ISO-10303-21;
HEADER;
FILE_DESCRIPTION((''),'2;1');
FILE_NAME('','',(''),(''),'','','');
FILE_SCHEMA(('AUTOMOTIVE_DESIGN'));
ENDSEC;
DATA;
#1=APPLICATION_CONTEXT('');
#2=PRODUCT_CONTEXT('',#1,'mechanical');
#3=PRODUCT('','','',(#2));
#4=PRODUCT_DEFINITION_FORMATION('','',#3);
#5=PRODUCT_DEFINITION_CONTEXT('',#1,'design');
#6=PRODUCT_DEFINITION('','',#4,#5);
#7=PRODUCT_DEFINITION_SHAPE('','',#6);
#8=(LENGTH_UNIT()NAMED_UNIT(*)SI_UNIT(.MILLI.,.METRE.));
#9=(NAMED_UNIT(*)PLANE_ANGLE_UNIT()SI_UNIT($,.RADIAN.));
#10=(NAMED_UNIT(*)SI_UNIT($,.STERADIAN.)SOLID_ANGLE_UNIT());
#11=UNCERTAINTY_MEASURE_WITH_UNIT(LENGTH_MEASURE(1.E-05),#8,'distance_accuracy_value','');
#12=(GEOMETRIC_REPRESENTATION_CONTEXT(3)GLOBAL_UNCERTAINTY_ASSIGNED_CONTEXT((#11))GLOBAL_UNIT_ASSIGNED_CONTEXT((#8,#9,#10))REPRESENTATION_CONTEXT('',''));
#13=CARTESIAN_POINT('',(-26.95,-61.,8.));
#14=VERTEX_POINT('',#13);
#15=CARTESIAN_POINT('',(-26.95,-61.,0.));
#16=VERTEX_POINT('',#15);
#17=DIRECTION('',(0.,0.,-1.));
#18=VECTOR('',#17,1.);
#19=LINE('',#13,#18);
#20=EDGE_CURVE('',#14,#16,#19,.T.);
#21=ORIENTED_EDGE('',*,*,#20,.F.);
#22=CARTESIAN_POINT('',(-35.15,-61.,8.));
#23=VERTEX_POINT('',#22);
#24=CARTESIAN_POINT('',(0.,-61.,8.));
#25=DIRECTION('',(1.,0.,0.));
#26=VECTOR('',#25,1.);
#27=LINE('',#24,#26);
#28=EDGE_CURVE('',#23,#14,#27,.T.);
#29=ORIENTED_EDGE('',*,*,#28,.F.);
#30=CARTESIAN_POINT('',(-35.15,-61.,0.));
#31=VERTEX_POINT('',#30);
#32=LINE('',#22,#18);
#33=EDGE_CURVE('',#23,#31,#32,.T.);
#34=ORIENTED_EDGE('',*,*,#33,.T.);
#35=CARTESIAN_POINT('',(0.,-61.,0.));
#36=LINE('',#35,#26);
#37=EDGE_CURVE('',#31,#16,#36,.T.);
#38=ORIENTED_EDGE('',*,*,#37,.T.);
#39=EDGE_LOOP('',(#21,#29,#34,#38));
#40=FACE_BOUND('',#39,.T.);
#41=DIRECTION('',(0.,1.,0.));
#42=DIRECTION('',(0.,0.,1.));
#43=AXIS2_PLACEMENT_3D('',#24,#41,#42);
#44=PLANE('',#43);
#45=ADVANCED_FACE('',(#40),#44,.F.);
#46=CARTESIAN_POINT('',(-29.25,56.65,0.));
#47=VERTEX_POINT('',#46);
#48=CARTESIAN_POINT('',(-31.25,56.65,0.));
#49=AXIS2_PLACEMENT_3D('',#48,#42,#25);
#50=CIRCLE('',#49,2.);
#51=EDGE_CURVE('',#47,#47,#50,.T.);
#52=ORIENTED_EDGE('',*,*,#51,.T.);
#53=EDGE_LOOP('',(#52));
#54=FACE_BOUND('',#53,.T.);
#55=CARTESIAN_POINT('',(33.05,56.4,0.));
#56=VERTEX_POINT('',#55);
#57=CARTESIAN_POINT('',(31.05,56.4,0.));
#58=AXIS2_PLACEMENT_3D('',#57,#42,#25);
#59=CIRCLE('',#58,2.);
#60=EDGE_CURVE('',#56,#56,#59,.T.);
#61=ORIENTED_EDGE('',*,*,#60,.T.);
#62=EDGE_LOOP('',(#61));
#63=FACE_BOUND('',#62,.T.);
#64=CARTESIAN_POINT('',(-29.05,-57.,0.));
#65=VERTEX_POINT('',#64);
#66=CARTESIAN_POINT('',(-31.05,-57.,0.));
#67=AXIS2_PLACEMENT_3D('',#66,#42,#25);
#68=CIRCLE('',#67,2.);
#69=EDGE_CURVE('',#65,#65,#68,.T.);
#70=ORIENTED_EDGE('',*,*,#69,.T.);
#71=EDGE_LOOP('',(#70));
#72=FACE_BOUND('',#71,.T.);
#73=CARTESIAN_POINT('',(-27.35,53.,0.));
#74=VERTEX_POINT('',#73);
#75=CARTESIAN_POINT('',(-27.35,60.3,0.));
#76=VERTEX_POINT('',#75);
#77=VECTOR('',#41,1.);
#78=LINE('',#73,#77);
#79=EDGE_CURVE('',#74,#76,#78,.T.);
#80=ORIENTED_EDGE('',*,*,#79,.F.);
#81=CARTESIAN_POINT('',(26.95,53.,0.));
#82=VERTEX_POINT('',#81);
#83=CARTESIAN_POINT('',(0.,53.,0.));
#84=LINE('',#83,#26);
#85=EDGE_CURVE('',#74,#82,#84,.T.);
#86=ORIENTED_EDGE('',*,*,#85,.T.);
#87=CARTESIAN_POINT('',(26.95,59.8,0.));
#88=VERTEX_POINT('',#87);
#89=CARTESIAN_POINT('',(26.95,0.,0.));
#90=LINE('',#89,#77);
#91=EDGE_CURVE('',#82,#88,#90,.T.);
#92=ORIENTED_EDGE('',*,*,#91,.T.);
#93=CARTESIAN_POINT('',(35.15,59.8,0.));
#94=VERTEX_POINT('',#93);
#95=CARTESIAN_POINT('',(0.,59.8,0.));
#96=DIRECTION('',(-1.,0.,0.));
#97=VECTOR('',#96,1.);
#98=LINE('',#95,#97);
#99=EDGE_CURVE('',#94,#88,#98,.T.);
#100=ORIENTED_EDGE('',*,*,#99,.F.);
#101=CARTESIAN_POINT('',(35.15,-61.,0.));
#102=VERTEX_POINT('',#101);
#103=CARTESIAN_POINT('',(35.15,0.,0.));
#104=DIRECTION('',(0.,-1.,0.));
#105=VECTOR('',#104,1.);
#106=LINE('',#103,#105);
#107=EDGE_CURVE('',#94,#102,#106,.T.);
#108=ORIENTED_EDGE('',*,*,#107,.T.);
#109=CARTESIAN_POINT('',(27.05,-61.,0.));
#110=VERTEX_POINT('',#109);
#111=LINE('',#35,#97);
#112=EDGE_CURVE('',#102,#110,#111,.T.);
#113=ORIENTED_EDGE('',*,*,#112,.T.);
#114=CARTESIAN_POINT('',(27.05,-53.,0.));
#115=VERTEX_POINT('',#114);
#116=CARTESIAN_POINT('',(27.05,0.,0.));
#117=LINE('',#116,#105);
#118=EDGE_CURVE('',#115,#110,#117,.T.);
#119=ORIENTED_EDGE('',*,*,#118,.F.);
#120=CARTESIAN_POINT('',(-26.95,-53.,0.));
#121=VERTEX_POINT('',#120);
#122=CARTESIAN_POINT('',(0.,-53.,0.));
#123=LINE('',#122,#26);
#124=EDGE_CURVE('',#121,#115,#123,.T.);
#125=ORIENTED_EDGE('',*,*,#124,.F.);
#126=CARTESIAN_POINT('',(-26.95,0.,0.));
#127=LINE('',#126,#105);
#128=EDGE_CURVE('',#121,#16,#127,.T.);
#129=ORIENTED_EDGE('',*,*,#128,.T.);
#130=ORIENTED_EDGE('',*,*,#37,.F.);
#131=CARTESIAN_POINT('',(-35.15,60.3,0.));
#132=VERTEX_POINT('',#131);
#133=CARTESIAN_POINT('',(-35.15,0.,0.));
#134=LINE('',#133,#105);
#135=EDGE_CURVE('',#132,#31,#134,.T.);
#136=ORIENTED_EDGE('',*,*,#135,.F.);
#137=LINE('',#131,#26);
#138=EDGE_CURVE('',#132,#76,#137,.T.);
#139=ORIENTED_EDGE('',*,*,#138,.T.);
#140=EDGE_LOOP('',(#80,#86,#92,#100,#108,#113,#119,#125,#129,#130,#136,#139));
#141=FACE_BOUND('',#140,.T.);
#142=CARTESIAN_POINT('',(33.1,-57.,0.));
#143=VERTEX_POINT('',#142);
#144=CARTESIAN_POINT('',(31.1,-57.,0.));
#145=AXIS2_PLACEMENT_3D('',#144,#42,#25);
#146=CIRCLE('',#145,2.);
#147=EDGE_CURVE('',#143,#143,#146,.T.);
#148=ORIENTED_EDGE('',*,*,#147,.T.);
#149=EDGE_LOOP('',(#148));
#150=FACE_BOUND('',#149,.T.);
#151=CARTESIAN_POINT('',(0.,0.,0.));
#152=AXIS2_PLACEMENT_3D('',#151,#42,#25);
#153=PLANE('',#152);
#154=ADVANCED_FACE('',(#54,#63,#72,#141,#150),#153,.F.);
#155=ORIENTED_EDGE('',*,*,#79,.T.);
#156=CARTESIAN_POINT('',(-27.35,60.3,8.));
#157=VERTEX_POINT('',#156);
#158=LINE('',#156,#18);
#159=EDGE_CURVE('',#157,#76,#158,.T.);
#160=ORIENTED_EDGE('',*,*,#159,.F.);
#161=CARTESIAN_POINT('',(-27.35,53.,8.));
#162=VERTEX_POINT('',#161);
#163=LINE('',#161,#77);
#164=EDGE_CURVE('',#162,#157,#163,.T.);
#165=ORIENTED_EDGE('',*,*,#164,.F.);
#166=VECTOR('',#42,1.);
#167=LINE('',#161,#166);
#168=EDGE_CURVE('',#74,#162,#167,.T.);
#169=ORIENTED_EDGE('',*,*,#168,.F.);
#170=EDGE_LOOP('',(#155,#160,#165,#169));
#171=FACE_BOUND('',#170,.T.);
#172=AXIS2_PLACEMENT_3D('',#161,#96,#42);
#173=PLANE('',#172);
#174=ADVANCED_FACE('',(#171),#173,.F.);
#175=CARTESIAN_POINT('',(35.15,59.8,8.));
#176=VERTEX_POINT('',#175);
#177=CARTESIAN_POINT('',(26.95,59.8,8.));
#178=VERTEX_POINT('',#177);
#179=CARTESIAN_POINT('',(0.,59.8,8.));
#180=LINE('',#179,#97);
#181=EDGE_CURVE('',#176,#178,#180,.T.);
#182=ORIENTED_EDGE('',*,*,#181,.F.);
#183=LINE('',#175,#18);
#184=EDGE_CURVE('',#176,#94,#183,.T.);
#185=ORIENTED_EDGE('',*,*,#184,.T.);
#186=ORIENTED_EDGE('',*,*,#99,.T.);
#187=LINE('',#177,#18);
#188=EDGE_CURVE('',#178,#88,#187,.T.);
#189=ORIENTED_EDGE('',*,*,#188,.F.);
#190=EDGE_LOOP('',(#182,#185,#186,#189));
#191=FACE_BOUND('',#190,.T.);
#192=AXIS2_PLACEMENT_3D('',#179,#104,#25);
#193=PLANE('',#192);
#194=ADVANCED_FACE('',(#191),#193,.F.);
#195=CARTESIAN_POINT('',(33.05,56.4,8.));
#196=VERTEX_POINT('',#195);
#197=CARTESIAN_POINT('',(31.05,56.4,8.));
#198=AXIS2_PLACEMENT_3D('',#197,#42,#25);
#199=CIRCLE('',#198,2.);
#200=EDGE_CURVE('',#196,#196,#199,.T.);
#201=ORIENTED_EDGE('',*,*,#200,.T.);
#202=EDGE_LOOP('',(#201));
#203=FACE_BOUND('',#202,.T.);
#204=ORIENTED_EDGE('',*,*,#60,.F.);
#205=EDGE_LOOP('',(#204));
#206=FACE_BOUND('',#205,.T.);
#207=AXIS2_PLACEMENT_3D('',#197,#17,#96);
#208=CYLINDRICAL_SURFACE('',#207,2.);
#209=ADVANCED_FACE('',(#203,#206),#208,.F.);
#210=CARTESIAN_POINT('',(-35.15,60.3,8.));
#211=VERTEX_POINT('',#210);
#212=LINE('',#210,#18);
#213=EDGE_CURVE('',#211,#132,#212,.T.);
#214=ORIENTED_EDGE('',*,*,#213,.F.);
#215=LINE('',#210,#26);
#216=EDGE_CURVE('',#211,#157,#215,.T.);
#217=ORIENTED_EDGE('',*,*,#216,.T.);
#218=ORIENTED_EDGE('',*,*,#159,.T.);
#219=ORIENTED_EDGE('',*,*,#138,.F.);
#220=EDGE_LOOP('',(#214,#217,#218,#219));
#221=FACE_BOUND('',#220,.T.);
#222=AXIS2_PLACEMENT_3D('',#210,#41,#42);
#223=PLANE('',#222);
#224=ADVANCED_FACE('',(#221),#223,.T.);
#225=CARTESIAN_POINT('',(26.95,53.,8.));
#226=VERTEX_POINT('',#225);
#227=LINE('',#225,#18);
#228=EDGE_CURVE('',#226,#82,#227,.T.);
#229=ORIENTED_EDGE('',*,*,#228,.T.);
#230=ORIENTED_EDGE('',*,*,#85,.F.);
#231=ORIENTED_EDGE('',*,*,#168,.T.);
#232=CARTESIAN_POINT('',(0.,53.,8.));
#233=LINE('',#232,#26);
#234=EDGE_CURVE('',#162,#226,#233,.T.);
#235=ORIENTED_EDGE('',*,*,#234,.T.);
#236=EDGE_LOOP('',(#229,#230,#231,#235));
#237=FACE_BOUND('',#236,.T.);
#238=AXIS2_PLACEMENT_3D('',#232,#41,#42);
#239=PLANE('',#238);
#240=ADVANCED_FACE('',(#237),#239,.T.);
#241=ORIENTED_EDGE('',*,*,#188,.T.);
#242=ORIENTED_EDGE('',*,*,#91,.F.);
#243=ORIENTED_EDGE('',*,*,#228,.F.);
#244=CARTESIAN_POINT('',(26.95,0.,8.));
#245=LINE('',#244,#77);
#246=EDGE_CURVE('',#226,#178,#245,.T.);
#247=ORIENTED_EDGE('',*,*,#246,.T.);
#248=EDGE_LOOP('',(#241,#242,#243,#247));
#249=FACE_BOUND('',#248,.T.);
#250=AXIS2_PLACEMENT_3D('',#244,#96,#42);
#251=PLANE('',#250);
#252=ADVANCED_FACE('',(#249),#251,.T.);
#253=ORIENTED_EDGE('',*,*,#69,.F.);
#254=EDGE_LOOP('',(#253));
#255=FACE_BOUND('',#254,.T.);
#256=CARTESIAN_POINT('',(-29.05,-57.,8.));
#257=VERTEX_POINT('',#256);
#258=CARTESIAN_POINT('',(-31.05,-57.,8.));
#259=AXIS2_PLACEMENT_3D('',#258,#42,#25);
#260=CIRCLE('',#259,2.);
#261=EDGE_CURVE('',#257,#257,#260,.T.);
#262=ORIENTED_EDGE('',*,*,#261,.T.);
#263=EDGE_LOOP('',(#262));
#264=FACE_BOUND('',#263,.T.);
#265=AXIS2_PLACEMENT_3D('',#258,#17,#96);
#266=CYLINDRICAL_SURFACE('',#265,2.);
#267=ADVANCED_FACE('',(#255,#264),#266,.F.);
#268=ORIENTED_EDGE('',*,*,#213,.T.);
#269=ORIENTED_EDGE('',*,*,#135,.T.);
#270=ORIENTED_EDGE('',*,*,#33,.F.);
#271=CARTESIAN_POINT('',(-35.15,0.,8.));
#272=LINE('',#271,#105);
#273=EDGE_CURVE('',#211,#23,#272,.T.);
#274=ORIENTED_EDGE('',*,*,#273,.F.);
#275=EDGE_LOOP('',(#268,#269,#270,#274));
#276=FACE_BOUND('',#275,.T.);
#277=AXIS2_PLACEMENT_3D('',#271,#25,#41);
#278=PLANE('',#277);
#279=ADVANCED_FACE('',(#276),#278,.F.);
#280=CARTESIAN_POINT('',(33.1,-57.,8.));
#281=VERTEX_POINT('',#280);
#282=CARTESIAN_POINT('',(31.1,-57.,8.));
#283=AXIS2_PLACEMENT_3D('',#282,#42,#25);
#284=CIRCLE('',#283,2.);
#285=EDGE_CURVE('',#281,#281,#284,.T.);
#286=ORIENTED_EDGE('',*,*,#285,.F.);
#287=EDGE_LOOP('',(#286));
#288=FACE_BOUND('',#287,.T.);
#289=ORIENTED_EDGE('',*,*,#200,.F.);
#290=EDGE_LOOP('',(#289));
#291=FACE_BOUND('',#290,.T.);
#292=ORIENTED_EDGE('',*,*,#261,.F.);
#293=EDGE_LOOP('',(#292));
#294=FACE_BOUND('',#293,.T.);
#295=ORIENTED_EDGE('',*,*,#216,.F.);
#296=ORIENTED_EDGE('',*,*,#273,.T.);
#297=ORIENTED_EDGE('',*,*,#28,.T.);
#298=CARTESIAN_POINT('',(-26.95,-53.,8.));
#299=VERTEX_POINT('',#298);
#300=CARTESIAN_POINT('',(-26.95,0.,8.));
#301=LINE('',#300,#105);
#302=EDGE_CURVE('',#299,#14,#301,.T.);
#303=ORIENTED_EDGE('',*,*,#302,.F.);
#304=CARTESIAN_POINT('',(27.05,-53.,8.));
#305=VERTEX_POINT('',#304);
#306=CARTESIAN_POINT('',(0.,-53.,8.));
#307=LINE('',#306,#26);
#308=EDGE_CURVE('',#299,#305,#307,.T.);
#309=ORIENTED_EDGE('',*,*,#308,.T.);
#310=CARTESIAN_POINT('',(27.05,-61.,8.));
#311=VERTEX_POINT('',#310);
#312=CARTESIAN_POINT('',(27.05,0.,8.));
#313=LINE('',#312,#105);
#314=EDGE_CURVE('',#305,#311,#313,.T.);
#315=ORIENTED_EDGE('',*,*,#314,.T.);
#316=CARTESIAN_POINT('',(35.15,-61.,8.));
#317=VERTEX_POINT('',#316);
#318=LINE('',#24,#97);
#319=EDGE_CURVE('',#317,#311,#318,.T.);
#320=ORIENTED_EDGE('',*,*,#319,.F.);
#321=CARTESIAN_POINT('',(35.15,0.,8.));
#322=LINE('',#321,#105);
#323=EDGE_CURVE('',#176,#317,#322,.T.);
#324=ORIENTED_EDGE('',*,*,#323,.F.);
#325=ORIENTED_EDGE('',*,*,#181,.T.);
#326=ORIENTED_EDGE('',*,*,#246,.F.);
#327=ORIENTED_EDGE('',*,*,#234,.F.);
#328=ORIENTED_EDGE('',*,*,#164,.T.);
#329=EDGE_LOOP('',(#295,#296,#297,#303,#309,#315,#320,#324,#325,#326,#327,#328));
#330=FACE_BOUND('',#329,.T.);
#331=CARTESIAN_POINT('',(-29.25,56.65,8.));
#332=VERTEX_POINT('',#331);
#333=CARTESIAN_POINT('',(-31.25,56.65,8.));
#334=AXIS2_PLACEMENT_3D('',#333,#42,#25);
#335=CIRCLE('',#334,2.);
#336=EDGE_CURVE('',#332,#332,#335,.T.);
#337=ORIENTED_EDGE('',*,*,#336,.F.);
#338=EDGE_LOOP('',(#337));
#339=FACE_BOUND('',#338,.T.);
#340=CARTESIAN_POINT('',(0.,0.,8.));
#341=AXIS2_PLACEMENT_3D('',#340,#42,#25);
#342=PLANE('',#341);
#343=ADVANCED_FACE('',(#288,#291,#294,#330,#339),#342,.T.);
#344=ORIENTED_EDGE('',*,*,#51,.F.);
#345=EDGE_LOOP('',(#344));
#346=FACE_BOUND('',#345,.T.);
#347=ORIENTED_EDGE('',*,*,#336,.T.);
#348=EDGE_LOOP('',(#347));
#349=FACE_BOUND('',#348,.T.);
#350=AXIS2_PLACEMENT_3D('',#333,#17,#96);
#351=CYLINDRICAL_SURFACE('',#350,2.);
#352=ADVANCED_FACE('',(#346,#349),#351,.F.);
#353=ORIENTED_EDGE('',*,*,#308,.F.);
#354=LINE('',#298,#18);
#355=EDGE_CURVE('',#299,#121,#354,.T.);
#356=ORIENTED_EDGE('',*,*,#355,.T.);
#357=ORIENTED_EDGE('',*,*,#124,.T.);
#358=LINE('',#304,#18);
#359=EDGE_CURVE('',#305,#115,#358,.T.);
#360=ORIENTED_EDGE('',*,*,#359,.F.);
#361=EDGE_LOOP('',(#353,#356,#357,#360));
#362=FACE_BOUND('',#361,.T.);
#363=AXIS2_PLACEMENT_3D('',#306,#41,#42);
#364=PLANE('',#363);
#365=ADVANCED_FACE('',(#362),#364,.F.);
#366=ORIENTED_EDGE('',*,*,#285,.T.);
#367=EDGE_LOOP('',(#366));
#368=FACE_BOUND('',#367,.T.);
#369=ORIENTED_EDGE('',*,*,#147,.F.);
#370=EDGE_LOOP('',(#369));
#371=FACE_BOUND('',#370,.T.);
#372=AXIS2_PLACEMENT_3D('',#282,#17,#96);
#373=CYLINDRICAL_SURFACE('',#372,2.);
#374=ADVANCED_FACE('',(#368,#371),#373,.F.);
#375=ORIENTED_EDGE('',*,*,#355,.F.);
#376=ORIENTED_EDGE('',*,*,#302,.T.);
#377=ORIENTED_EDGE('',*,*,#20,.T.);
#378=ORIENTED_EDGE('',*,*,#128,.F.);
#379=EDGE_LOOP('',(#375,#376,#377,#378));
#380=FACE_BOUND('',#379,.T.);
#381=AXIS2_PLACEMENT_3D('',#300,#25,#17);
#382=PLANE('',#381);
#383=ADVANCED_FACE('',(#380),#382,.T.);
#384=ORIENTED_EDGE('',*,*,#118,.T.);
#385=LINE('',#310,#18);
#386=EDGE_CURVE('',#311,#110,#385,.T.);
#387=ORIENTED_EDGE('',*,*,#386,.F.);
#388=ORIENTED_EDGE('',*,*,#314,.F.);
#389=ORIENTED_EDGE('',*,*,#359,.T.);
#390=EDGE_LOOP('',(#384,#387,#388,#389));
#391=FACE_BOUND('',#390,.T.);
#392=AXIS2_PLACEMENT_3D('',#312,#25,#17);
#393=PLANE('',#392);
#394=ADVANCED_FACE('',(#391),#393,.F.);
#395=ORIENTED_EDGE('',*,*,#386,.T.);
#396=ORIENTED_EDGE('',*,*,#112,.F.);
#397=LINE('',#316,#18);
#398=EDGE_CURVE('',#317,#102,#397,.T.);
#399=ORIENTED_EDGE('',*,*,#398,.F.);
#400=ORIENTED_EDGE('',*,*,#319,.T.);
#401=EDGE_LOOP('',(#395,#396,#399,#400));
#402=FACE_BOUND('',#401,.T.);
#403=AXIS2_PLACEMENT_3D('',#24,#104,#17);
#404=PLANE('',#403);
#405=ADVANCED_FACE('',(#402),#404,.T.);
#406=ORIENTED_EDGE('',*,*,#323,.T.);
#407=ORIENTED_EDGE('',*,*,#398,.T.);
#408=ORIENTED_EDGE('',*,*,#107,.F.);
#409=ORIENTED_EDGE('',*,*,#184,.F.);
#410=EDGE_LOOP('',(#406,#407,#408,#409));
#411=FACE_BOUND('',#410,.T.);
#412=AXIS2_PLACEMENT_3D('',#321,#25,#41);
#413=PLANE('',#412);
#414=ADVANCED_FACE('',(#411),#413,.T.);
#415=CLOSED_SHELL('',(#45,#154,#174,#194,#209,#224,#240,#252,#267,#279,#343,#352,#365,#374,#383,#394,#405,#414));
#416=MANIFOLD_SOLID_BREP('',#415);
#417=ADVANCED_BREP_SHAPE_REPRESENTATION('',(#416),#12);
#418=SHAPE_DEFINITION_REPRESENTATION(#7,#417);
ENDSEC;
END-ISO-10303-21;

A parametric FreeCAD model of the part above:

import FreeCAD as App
import Part
import Sketcher
from FreeCAD import Vector

doc = App.newDocument("Part")
body = doc.addObject("PartDesign::Body", "Body")

# Sketch on XY plane
sketch1 = body.newObject("Sketcher::SketchObject", "Sketch")
sketch1.AttachmentSupport = (doc.getObject("XY_Plane"), [""])
sketch1.MapMode = "FlatFace"
sketch1.addGeometry([
    Part.LineSegment(Vector(-35.15, 60.3, 0), Vector(-35.15, -61, 0)),  # 0
    Part.LineSegment(Vector(-35.15, -61, 0), Vector(-26.95, -61, 0)),  # 1
    Part.LineSegment(Vector(-26.95, -61, 0), Vector(-26.95, -53, 0)),  # 2
    Part.LineSegment(Vector(-26.95, -53, 0), Vector(27.05, -53, 0)),  # 3
    Part.LineSegment(Vector(27.05, -53, 0), Vector(27.05, -61, 0)),  # 4
    Part.LineSegment(Vector(27.05, -61, 0), Vector(35.15, -61, 0)),  # 5
    Part.LineSegment(Vector(35.15, -61, 0), Vector(35.15, 59.8, 0)),  # 6
    Part.LineSegment(Vector(35.15, 59.8, 0), Vector(26.95, 59.8, 0)),  # 7
    Part.LineSegment(Vector(26.95, 59.8, 0), Vector(26.95, 53, 0)),  # 8
    Part.LineSegment(Vector(26.95, 53, 0), Vector(-27.35, 53, 0)),  # 9
    Part.LineSegment(Vector(-27.35, 53, 0), Vector(-27.35, 60.3, 0)),  # 10
    Part.LineSegment(Vector(-27.35, 60.3, 0), Vector(-35.15, 60.3, 0)),  # 11
    Part.Circle(Vector(-31.25, 56.65, 0), Vector(0, 0, 1), 2),  # 12
    Part.Circle(Vector(-31.05, -57, 0), Vector(0, 0, 1), 2),  # 13
    Part.Circle(Vector(31.1, -57, 0), Vector(0, 0, 1), 2),  # 14
    Part.Circle(Vector(31.05, 56.4, 0), Vector(0, 0, 1), 2),  # 15
], False)
sketch1.addConstraint([
    Sketcher.Constraint("Coincident", 0, 2, 1, 1),
    Sketcher.Constraint("Coincident", 1, 2, 2, 1),
    Sketcher.Constraint("Coincident", 2, 2, 3, 1),
    Sketcher.Constraint("Coincident", 3, 2, 4, 1),
    Sketcher.Constraint("Coincident", 4, 2, 5, 1),
    Sketcher.Constraint("Coincident", 5, 2, 6, 1),
    Sketcher.Constraint("Coincident", 6, 2, 7, 1),
    Sketcher.Constraint("Coincident", 7, 2, 8, 1),
    Sketcher.Constraint("Coincident", 8, 2, 9, 1),
    Sketcher.Constraint("Coincident", 9, 2, 10, 1),
    Sketcher.Constraint("Coincident", 10, 2, 11, 1),
    Sketcher.Constraint("Coincident", 11, 2, 0, 1),
    Sketcher.Constraint("Vertical", 0),
    Sketcher.Constraint("Horizontal", 1),
    Sketcher.Constraint("Vertical", 2),
    Sketcher.Constraint("Horizontal", 3),
    Sketcher.Constraint("Vertical", 4),
    Sketcher.Constraint("Horizontal", 5),
    Sketcher.Constraint("Vertical", 6),
    Sketcher.Constraint("Horizontal", 7),
    Sketcher.Constraint("Vertical", 8),
    Sketcher.Constraint("Horizontal", 9),
    Sketcher.Constraint("Vertical", 10),
    Sketcher.Constraint("Horizontal", 11),
    Sketcher.Constraint("Equal", 12, 13),
    Sketcher.Constraint("Equal", 13, 14),
    Sketcher.Constraint("Equal", 14, 15),
    Sketcher.Constraint("Symmetric", 2, 2, 8, 2, -1, 1),
    Sketcher.Constraint("Symmetric", 0, 2, 5, 2, -2),
    Sketcher.Constraint("Horizontal", 13, 3, 14, 3),
    Sketcher.Constraint("Diameter", 12, 4.0),
    Sketcher.Constraint("DistanceX", 3, 1, 3, 2, 54.0),
    Sketcher.Constraint("DistanceY", 2, 1, 2, 2, 8.0),
    Sketcher.Constraint("DistanceX", 1, 1, 1, 2, 8.2),
    Sketcher.Constraint("DistanceX", 5, 1, 5, 2, 8.1),
    Sketcher.Constraint("DistanceX", 9, 2, 9, 1, 54.3),
    Sketcher.Constraint("DistanceY", 0, 2, 0, 1, 121.3),
    Sketcher.Constraint("DistanceY", 6, 1, 6, 2, 120.8),
    Sketcher.Constraint("DistanceY", 8, 2, 8, 1, 6.8),
    Sketcher.Constraint("DistanceY", 13, 3, -1, 1, 57.0),
    Sketcher.Constraint("DistanceX", 1, 2, 15, 3, 58.0),
    Sketcher.Constraint("DistanceX", -1, 1, 14, 3, 31.1),
    Sketcher.Constraint("DistanceY", -1, 1, 15, 3, 56.4),
    Sketcher.Constraint("DistanceX", 12, 3, 13, 3, 0.2),
    Sketcher.Constraint("DistanceX", 12, 3, 15, 3, 62.3),
    Sketcher.Constraint("DistanceY", -1, 1, 12, 3, 56.65),
])
pad1 = body.newObject("PartDesign::Pad", "Pad")
pad1.Profile = sketch1
pad1.Length = 8

doc.recompute()
